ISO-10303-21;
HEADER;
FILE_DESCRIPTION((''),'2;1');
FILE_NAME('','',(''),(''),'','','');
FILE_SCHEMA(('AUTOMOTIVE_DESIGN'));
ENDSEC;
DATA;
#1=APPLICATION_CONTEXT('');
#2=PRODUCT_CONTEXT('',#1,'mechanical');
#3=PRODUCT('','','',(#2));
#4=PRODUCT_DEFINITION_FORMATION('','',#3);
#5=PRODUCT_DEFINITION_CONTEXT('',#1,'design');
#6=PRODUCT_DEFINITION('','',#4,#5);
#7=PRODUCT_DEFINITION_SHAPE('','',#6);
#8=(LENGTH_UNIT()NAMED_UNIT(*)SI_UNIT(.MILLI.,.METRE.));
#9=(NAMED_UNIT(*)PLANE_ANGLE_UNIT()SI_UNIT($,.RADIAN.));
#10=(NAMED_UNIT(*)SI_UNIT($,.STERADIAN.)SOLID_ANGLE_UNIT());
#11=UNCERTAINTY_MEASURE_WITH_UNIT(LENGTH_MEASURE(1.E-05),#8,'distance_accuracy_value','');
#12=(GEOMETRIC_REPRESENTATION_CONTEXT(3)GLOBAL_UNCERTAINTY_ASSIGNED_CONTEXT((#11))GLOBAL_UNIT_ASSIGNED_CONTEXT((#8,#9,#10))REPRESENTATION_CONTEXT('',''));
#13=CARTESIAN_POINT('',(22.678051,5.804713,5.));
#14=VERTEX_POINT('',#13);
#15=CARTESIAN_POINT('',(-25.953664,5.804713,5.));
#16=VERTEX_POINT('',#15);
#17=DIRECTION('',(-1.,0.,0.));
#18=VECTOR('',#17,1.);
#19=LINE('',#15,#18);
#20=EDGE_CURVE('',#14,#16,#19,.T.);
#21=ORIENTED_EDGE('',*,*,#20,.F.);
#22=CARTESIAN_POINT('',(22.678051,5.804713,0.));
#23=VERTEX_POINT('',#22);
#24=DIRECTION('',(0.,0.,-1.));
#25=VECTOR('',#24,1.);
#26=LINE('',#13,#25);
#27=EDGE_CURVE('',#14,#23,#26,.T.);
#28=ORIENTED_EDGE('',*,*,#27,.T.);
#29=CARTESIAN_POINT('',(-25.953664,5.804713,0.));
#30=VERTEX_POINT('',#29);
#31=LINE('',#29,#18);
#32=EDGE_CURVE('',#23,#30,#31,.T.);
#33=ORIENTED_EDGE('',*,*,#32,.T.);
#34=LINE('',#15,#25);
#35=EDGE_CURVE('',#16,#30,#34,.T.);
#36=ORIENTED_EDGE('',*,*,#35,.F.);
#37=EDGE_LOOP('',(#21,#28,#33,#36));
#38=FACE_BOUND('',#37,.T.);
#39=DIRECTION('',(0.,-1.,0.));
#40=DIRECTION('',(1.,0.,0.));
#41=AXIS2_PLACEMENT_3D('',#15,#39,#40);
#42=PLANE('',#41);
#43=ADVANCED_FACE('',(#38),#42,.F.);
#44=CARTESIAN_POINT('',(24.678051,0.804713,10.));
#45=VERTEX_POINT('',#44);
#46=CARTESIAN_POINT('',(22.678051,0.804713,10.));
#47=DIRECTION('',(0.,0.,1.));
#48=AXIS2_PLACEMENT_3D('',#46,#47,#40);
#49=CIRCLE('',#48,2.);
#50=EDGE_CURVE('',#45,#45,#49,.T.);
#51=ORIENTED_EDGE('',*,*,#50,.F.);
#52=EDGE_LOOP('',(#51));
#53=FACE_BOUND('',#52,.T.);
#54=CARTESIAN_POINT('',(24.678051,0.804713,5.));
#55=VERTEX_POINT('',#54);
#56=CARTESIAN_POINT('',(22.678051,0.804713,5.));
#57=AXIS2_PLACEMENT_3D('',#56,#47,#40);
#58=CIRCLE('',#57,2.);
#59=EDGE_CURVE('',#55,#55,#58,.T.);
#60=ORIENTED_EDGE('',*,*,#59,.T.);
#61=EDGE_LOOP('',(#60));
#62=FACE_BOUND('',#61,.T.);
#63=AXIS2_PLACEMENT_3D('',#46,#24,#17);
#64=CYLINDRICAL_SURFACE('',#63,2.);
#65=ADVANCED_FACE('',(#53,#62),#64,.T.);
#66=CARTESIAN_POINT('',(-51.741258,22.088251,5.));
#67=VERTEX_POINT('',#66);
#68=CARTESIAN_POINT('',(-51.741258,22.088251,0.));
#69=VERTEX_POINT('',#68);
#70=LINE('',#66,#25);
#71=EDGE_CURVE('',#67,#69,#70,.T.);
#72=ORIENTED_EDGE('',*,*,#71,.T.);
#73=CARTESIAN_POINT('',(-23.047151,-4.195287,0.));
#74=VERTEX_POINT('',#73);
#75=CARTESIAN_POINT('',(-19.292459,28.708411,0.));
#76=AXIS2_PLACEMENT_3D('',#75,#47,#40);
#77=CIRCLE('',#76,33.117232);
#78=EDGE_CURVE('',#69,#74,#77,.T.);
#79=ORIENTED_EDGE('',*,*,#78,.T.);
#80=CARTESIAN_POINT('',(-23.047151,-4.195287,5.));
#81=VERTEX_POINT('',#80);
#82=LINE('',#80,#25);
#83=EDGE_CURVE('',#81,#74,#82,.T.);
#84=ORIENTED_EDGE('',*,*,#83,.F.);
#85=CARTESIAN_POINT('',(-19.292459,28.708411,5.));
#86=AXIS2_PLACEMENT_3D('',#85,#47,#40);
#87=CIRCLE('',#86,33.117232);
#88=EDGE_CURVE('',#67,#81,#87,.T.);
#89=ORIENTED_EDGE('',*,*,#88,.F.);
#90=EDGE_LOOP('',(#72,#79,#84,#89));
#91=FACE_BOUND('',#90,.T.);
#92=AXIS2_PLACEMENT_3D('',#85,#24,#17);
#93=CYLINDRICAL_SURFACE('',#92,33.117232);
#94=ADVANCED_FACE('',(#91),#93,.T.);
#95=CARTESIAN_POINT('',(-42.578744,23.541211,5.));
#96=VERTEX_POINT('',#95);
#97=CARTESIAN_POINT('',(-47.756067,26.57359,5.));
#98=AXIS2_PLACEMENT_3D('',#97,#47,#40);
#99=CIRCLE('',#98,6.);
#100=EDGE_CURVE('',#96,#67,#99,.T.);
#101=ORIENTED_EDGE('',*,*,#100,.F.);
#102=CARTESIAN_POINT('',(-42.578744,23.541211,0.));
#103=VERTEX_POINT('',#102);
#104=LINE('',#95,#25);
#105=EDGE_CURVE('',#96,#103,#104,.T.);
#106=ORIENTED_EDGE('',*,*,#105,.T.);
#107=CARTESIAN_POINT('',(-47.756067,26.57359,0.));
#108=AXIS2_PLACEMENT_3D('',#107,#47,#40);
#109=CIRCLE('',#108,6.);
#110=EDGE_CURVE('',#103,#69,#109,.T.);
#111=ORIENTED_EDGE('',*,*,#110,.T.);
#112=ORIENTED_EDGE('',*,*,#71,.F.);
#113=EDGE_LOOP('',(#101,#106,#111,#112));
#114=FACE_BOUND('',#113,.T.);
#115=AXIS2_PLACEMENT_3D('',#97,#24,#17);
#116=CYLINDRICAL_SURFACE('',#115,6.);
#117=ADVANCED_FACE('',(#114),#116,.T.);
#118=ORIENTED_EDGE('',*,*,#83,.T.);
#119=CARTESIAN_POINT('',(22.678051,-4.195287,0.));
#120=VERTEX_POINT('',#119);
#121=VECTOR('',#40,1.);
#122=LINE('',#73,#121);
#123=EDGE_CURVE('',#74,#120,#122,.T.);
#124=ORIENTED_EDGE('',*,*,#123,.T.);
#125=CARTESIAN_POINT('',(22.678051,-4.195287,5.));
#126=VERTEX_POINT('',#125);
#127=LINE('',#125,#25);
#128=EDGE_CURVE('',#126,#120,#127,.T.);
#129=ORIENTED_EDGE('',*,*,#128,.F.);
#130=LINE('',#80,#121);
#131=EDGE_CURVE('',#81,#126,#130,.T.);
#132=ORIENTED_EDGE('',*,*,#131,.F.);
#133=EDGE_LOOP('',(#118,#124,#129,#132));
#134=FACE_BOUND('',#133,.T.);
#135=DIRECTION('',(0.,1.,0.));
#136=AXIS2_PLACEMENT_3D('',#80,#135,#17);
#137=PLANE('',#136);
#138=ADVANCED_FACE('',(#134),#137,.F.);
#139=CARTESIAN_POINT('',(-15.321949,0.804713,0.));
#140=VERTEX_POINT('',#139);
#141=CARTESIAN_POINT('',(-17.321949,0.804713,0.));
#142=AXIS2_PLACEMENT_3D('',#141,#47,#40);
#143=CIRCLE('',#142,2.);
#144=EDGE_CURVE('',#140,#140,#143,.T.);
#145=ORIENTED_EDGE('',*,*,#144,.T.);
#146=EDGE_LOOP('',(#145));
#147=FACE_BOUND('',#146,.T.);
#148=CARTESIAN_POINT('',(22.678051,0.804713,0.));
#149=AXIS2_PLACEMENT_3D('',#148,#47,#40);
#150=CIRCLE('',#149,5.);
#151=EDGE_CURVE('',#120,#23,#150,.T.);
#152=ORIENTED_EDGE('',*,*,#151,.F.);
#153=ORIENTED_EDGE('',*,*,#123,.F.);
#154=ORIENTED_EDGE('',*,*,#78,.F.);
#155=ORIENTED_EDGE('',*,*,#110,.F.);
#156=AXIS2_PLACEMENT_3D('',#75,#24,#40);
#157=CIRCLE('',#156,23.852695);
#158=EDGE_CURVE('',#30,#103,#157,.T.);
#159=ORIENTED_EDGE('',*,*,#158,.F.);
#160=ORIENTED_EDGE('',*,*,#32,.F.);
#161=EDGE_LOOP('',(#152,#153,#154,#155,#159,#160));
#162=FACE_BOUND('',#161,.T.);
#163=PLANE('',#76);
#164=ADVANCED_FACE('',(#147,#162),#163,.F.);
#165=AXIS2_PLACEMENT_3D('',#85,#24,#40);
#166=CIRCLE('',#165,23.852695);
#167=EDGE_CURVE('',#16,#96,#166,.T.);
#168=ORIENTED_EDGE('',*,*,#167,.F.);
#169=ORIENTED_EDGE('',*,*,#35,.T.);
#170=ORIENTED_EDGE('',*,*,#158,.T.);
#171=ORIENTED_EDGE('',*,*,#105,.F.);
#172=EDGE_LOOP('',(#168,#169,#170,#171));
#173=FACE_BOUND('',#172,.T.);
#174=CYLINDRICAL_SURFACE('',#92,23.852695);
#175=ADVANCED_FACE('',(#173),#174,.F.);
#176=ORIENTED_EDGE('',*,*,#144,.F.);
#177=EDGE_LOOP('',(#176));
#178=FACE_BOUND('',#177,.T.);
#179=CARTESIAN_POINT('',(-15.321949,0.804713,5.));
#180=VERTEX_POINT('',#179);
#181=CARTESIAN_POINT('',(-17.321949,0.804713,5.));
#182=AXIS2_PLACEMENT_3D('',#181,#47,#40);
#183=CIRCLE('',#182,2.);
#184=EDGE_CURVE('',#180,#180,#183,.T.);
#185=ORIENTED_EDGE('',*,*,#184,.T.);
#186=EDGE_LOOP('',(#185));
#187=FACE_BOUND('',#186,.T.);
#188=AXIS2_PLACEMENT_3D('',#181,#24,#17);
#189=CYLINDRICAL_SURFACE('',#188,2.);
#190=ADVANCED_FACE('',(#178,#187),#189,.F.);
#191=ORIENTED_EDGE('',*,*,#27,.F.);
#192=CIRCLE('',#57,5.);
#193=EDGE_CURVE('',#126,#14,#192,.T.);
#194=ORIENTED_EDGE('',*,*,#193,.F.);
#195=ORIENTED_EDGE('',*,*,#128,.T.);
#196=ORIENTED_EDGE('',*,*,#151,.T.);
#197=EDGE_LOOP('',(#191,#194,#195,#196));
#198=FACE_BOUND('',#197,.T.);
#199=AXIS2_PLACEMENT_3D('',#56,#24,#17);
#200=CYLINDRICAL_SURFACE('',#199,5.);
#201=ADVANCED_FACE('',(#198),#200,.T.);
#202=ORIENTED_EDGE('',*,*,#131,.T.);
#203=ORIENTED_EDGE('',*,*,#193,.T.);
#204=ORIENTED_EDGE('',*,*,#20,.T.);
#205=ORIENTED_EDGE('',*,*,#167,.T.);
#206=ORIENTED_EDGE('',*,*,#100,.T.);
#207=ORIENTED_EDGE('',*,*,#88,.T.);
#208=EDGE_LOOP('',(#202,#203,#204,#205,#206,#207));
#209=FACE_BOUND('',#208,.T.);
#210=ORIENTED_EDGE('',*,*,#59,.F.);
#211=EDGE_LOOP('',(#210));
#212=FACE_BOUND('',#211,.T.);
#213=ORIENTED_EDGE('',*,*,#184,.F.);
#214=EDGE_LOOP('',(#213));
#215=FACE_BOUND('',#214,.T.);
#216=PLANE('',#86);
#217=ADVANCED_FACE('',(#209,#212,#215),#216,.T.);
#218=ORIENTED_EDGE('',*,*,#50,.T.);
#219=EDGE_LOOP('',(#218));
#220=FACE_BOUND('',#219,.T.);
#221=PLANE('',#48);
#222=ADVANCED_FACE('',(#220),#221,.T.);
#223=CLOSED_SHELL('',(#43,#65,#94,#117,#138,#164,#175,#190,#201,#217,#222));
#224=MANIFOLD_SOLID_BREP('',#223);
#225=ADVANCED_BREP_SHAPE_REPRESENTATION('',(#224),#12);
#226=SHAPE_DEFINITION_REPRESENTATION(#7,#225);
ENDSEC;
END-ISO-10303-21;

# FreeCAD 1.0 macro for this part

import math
import FreeCAD as App
import Part
import Sketcher
from FreeCAD import Vector
Q = App.Units.Quantity

doc = App.newDocument("Part")
body = doc.addObject("PartDesign::Body", "Body")

sketch1 = body.newObject("Sketcher::SketchObject", "Sketch")
sketch1.AttachmentSupport = (doc.getObject("XY_Plane"), [""])
sketch1.MapMode = "FlatFace"
sketch1.addGeometry(Part.LineSegment(Vector(22.7, 5.8, 0), Vector(-26, 5.8, 0)), False)
sketch1.addGeometry(Part.ArcOfCircle(Part.Circle(Vector(-19.3, 28.7, 0), Vector(0, 0, 1), 23.9), math.radians(-167), math.radians(-106)), False)
sketch1.addGeometry(Part.ArcOfCircle(Part.Circle(Vector(-47.8, 26.6, 0), Vector(0, 0, 1), 6), math.radians(-30), math.radians(228)), False)
sketch1.addGeometry(Part.ArcOfCircle(Part.Circle(Vector(-19.3, 28.7, 0), Vector(0, 0, 1), 33.1), math.radians(-168), math.radians(-97)), False)
sketch1.addGeometry(Part.LineSegment(Vector(-23, -4.2, 0), Vector(22.7, -4.2, 0)), False)
sketch1.addGeometry(Part.ArcOfCircle(Part.Circle(Vector(22.7, 0.8, 0), Vector(0, 0, 1), 5), math.radians(-90), math.radians(90)), False)
sketch1.addGeometry(Part.Circle(Vector(-17.3, 0.8, 0), Vector(0, 0, 1), 2), False)
sketch1.addConstraint(Sketcher.Constraint("Coincident", 0, 2, 1, 2))
sketch1.addConstraint(Sketcher.Constraint("Coincident", 1, 1, 2, 1))
sketch1.addConstraint(Sketcher.Constraint("Coincident", 2, 2, 3, 1))
sketch1.addConstraint(Sketcher.Constraint("Coincident", 3, 2, 4, 1))
sketch1.addConstraint(Sketcher.Constraint("Tangent", 4, 2, 5, 1))
sketch1.addConstraint(Sketcher.Constraint("Tangent", 5, 2, 0, 1))
sketch1.addConstraint(Sketcher.Constraint("Horizontal", 0))
sketch1.addConstraint(Sketcher.Constraint("Horizontal", 4))
sketch1.addConstraint(Sketcher.Constraint("Coincident", 3, 3, 1, 3))
sketch1.addConstraint(Sketcher.Constraint("Horizontal", 5, 3, 6, 3))
sketch1.addConstraint(Sketcher.Constraint("Diameter", 6, Q("4 mm")))
sketch1.addConstraint(Sketcher.Constraint("Radius", 2, Q("6 mm")))
sketch1.addConstraint(Sketcher.Constraint("Radius", 5, Q("5 mm")))
sketch1.addConstraint(Sketcher.Constraint("DistanceX", 6, 3, 5, 3, Q("40 mm")))
sketch1.addConstraint(Sketcher.Constraint("Radius", 1, Q("23.852695 mm")))
sketch1.addConstraint(Sketcher.Constraint("Radius", 3, Q("33.117232 mm")))
sketch1.addConstraint(Sketcher.Constraint("DistanceY", 5, 3, 3, 3, Q("27.903698 mm")))
sketch1.addConstraint(Sketcher.Constraint("DistanceY", 1, 1, 1, 3, Q("5.167201 mm")))
sketch1.addConstraint(Sketcher.Constraint("DistanceX", 2, 2, 1, 3, Q("32.448799 mm")))
sketch1.addConstraint(Sketcher.Constraint("DistanceX", 0, 2, 0, 1, Q("48.631715 mm")))
sketch1.addConstraint(Sketcher.Constraint("DistanceX", 1, 3, -1, 1, Q("19.292459 mm")))
sketch1.addConstraint(Sketcher.Constraint("DistanceY", -1, 1, 1, 3, Q("28.708411 mm")))
pad1 = body.newObject("PartDesign::Pad", "Pad")
pad1.Profile = sketch1
pad1.Length = 5

sketch2 = body.newObject("Sketcher::SketchObject", "Sketch001")
sketch2.AttachmentSupport = (doc.getObject("XY_Plane"), [""])
sketch2.MapMode = "FlatFace"
sketch2.AttachmentOffset = App.Placement(Vector(0, 0, 5), App.Rotation())
sketch2.addGeometry(Part.Circle(Vector(22.7, 0.8, 0), Vector(0, 0, 1), 2), False)
sketch2.addConstraint(Sketcher.Constraint("Diameter", 0, Q("4 mm")))
sketch2.addConstraint(Sketcher.Constraint("DistanceX", -1, 1, 0, 3, Q("22.678051 mm")))
sketch2.addConstraint(Sketcher.Constraint("DistanceY", -1, 1, 0, 3, Q("0.804713 mm")))
pad2 = body.newObject("PartDesign::Pad", "Pad001")
pad2.Profile = sketch2
pad2.Length = 5

doc.recompute()
